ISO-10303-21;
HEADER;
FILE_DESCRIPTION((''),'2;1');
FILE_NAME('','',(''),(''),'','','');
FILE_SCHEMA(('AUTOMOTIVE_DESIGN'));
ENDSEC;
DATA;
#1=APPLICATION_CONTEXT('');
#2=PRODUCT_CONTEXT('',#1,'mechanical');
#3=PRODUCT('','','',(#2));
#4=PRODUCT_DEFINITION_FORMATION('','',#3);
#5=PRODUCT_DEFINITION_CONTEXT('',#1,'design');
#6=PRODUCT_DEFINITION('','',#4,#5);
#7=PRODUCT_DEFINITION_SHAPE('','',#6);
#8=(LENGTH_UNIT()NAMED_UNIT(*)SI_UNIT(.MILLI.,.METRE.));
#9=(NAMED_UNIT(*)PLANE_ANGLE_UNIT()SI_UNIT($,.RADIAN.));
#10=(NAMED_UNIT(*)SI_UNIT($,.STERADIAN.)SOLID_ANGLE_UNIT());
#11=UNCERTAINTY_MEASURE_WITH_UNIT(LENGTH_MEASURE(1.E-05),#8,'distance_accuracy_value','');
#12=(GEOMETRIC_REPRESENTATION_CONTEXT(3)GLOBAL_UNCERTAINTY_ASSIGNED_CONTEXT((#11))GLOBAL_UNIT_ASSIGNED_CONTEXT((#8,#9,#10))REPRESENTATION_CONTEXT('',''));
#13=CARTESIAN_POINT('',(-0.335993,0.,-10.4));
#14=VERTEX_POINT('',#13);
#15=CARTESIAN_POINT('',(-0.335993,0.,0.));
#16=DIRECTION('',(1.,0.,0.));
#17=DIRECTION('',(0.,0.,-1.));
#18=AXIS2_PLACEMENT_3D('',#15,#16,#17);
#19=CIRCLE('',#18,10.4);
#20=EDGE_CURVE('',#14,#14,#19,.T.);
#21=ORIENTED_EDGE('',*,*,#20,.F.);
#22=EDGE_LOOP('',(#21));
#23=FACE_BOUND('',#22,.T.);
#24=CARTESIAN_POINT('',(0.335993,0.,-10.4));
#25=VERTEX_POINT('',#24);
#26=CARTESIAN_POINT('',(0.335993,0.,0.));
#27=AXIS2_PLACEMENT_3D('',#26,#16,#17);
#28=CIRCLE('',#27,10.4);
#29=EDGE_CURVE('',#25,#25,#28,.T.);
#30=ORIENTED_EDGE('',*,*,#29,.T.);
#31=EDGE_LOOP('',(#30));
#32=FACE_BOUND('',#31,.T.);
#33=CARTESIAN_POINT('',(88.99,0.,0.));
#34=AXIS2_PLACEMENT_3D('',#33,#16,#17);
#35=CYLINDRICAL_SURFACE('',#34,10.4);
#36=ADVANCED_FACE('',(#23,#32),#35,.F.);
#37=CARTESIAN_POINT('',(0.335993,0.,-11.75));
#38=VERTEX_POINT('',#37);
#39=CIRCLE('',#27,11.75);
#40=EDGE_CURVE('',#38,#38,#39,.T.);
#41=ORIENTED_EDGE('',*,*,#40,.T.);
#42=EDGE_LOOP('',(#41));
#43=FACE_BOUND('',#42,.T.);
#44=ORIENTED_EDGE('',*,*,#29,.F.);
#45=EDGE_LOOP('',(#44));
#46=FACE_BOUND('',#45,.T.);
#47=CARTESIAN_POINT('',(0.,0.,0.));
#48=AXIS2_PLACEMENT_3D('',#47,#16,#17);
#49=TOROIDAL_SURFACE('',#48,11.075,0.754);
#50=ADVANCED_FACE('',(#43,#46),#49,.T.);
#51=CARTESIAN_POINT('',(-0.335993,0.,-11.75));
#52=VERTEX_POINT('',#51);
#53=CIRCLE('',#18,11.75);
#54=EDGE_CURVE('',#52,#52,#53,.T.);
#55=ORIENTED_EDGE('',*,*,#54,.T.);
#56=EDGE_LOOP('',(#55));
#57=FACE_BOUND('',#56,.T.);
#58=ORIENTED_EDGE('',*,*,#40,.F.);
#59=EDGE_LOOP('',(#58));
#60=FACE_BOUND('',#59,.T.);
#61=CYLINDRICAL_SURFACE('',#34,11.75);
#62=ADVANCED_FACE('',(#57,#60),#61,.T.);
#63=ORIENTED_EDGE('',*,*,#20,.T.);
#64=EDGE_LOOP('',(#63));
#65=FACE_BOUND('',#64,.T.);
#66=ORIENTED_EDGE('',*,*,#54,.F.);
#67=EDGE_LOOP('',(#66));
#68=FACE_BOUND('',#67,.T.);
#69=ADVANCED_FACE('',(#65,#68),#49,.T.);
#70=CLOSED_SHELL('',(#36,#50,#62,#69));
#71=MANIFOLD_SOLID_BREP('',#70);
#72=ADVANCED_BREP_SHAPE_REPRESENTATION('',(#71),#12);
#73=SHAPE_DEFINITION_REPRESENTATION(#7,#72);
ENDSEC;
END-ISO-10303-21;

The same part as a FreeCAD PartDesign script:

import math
import FreeCAD as App
import Part
import Sketcher
from FreeCAD import Vector

doc = App.newDocument("Part")
body = doc.addObject("PartDesign::Body", "Body")

sketch1 = doc.addObject("Sketcher::SketchObject", "Sketch")
body.addObject(sketch1)
sketch1.AttachmentSupport = (doc.XY_Plane, [""])
sketch1.MapMode = "FlatFace"
sketch1.addGeometry(Part.LineSegment(Vector(0.3, 11.8, 0), Vector(-0.3, 11.8, 0)), False)
sketch1.addGeometry(Part.ArcOfCircle(Part.Circle(Vector(0, 11.1, 0), Vector(0, 0, 1), 0.8), math.radians(116), math.radians(244)), False)
sketch1.addGeometry(Part.LineSegment(Vector(-0.3, 10.4, 0), Vector(0.3, 10.4, 0)), False)
sketch1.addGeometry(Part.ArcOfCircle(Part.Circle(Vector(0, 11.1, 0), Vector(0, 0, 1), 0.8), math.radians(-64), math.radians(64)), False)
sketch1.addConstraint(Sketcher.Constraint("Coincident", 0, 2, 1, 1))
sketch1.addConstraint(Sketcher.Constraint("Coincident", 1, 2, 2, 1))
sketch1.addConstraint(Sketcher.Constraint("Coincident", 2, 2, 3, 1))
sketch1.addConstraint(Sketcher.Constraint("Coincident", 3, 2, 0, 1))
sketch1.addConstraint(Sketcher.Constraint("Horizontal", 0))
sketch1.addConstraint(Sketcher.Constraint("Horizontal", 2))
sketch1.addConstraint(Sketcher.Constraint("Coincident", 3, 3, 1, 3))
sketch1.addConstraint(Sketcher.Constraint("Equal", 1, 3))
sketch1.addConstraint(Sketcher.Constraint("PointOnObject", 1, 3, -2))
sketch1.addConstraint(Sketcher.Constraint("Vertical", 0, 2, 1, 2))
sketch1.addConstraint(Sketcher.Constraint("Radius", 1, 0.754))
sketch1.addConstraint(Sketcher.Constraint("DistanceY", -1, 1, 1, 2, 10.4))
sketch1.addConstraint(Sketcher.Constraint("DistanceY", -1, 1, 0, 2, 11.75))
revolution = doc.addObject("PartDesign::Revolution", "Revolution")
body.addObject(revolution)
revolution.Profile = sketch1
revolution.ReferenceAxis = (sketch1, ["H_Axis"])
revolution.Angle = 360

doc.recompute()
